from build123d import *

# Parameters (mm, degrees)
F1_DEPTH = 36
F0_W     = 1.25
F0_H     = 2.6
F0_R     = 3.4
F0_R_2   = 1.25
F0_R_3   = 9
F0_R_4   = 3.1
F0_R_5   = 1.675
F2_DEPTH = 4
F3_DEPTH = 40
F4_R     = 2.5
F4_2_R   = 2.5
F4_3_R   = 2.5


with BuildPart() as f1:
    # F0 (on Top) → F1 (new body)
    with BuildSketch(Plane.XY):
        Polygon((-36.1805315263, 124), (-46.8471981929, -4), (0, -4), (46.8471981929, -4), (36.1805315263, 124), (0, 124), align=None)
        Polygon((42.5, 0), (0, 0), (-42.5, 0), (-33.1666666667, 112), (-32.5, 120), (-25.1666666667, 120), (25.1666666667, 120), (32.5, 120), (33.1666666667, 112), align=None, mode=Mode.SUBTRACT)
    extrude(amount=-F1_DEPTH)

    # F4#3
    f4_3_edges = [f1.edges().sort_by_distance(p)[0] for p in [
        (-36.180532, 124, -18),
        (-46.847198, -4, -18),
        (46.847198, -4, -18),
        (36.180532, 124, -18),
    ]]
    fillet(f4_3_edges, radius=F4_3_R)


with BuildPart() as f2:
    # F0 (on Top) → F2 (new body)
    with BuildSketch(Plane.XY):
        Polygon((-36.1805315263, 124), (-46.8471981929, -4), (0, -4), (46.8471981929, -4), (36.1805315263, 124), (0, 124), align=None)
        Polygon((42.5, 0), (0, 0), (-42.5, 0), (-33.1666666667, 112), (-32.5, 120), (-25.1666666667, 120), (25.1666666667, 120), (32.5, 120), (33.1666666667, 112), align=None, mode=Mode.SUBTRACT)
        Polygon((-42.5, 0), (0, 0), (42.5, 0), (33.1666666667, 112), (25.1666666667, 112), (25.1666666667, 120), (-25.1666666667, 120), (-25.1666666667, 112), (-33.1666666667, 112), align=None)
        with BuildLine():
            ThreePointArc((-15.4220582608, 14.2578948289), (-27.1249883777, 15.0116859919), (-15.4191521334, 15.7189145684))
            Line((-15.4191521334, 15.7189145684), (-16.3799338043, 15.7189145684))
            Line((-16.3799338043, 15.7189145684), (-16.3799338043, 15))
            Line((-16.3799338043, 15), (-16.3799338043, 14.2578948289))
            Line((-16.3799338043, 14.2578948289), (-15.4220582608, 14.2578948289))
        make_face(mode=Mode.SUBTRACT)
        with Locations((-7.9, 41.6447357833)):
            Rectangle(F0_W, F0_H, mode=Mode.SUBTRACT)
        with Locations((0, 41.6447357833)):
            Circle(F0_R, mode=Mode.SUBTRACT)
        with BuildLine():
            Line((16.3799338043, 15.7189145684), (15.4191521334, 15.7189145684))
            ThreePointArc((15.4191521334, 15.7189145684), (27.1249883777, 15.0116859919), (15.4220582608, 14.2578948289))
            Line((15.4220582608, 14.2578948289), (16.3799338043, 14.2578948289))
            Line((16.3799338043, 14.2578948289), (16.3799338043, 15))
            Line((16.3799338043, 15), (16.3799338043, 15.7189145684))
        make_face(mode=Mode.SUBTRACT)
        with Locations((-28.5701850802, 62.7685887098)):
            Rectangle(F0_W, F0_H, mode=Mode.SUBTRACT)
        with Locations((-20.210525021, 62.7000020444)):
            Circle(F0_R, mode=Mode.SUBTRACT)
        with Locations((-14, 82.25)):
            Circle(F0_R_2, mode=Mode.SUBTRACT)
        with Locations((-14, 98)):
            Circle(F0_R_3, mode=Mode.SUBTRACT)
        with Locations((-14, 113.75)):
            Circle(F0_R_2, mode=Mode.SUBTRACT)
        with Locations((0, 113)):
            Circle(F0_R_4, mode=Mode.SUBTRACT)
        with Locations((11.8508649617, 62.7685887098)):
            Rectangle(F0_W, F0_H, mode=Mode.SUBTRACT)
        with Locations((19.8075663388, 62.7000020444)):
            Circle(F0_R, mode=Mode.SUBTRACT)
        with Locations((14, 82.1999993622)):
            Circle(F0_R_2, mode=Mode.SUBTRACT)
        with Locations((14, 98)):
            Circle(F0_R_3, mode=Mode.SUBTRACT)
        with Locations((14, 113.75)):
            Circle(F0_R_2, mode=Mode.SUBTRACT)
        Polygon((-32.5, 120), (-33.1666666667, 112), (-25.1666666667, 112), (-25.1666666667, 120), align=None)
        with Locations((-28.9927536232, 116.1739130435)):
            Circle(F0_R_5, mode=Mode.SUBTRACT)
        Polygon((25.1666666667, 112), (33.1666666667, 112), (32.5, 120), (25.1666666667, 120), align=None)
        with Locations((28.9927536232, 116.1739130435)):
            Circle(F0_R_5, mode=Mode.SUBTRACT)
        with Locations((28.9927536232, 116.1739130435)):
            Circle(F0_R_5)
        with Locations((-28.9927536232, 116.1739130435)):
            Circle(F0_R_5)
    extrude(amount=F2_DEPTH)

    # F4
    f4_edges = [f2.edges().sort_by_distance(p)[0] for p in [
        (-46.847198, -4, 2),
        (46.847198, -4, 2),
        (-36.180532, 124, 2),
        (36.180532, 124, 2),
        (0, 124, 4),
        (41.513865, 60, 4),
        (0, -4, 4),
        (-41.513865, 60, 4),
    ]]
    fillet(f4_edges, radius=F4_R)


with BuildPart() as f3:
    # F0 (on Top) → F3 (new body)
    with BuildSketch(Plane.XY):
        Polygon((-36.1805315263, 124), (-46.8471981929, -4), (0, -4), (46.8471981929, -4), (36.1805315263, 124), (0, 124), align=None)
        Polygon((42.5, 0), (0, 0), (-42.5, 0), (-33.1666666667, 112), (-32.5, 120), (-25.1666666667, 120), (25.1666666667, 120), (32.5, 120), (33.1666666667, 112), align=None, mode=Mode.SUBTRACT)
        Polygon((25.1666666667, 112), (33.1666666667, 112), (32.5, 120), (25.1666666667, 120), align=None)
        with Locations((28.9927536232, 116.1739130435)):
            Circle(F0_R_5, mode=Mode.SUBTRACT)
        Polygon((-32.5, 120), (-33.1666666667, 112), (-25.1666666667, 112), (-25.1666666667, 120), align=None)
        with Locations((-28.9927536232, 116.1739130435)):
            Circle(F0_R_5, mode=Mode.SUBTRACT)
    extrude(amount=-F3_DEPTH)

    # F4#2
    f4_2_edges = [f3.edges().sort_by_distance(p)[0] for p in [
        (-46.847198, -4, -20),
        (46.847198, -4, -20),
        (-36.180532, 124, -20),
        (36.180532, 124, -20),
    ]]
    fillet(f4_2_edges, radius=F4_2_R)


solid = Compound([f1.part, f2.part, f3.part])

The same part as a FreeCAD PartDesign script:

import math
import FreeCAD as App
import Part
import Sketcher

V = App.Vector


def edges_at(feature, points):
    """Names of the edges that pass closest to the given points."""
    edges = feature.Shape.Edges
    near = lambda p: min(range(len(edges)), key=lambda i: edges[i].distToShape(Part.Vertex(*p))[0])
    return sorted({f"Edge{near(p) + 1}" for p in points})


def add_polygon(sketch, points):
    """Adds a closed chain of lines whose ends are joined by coincident constraints."""
    first, n = sketch.GeometryCount, len(points)
    for a, b in zip(points, points[1:] + points[:1]):
        sketch.addGeometry(Part.LineSegment(App.Vector(*a, 0), App.Vector(*b, 0)), False)
    for i in range(n):
        sketch.addConstraint(Sketcher.Constraint("Coincident", first + i, 2, first + (i + 1) % n, 1))

doc = App.newDocument("Part")
params = doc.addObject("Spreadsheet::Sheet", "Params")
for row, (alias, value) in enumerate([
    ("sketch1_width", "85 mm"),
    ("sketch1_width2", "65 mm"),
    ("pad1_length", "36 mm"),
    ("fillet_radius", "2.5 mm"),
    ("sketch2_diameter", "18 mm"),
    ("sketch2_diameter2", "6.8 mm"),
    ("sketch2_diameter3", "2.5 mm"),
    ("sketch2_diameter4", "6.2 mm"),
    ("sketch2_height", "2.6 mm"),
    ("pad2_length", "4 mm"),
    ("fillet2_radius", "2.5 mm"),
    ("sketch3_diameter", "3.35 mm"),
    ("sketch3_width", "85 mm"),
    ("sketch3_width2", "8 mm"),
    ("pad3_length", "40 mm"),
    ("fillet3_radius", "2.5 mm"),
], start=1):
    params.set(f"A{row}", alias)
    params.set(f"B{row}", "=" + value)
    params.setAlias(f"B{row}", alias)

body = doc.addObject("PartDesign::Body", "Body")

# Sketch on XY plane
sketch1 = body.newObject("Sketcher::SketchObject", "Sketch")
sketch1.AttachmentSupport = (doc.getObject("XY_Plane"), [""])
sketch1.MapMode = "FlatFace"
add_polygon(sketch1, [(-36, 124), (-47, -4), (47, -4), (36, 124)])  # lines 0-3
add_polygon(sketch1, [(33, 112), (42, 0), (-42, 0), (-33, 112), (-32, 120), (32, 120)])  # lines 4-9
sketch1.addConstraint(Sketcher.Constraint("Horizontal", 1))
sketch1.addConstraint(Sketcher.Constraint("Horizontal", 3))
sketch1.addConstraint(Sketcher.Constraint("Horizontal", 5))
sketch1.addConstraint(Sketcher.Constraint("Horizontal", 8))
sketch1.addConstraint(Sketcher.Constraint("Symmetric", 4, 2, 5, 2, -1, 1))
sketch1.addConstraint(Sketcher.Constraint("Symmetric", 6, 2, 9, 2, -2))
sketch1.addConstraint(Sketcher.Constraint("Parallel", 2, 4))
sketch1.addConstraint(Sketcher.Constraint("Parallel", 0, 6))
sketch1.addConstraint(Sketcher.Constraint("Parallel", 6, 7))
sketch1.addConstraint(Sketcher.Constraint("Parallel", 4, 9))
sketch1.addConstraint(Sketcher.Constraint("DistanceX", 5, 2, 5, 1, 85.0))
sketch1.addConstraint(Sketcher.Constraint("DistanceX", 8, 1, 8, 2, 65.0))
sketch1.addConstraint(Sketcher.Constraint("DistanceY", 0, 2, -1, 1, 4.0))
sketch1.addConstraint(Sketcher.Constraint("DistanceY", -1, 1, 2, 2, 124.0))
sketch1.addConstraint(Sketcher.Constraint("DistanceY", -1, 1, 6, 2, 112.0))
sketch1.addConstraint(Sketcher.Constraint("DistanceY", -1, 1, 7, 2, 120.0))
sketch1.addConstraint(Sketcher.Constraint("DistanceX", 0, 2, -1, 1, 46.847198))
sketch1.addConstraint(Sketcher.Constraint("DistanceX", -1, 1, 1, 2, 46.847198))
sketch1.setExpression("Constraints[20]", "Params.sketch1_width")
sketch1.setExpression("Constraints[21]", "Params.sketch1_width2")
pad1 = body.newObject("PartDesign::Pad", "Pad")
pad1.Profile = sketch1
pad1.setExpression("Length", "Params.pad1_length")
pad1.Reversed = True
doc.recompute()

fillet = body.newObject("PartDesign::Fillet", "Fillet")
fillet.Base = (pad1, edges_at(pad1, [
    (-36.181, 124, -18),
    (-46.847, -4, -18),
    (46.847, -4, -18),
    (36.181, 124, -18),
]))
fillet.setExpression("Radius", "Params.fillet_radius")
body2 = doc.addObject("PartDesign::Body", "Body001")

# Sketch on XY plane
sketch2 = body2.newObject("Sketcher::SketchObject", "Sketch001")
sketch2.AttachmentSupport = (doc.getObject("XY_Plane001"), [""])
sketch2.MapMode = "FlatFace"
add_polygon(sketch2, [(-36.2, 124), (-46.8, -4), (46.8, -4), (36.2, 124)])  # lines 0-3
sketch2.addGeometry(Part.LineSegment(V(-16.4, 14.3, 0), V(-15.4, 14.3, 0)), False)  # 4
sketch2.addGeometry(Part.ArcOfCircle(Part.Circle(V(-21.2, 15, 0), V(0, 0, 1), 5.9), math.radians(7), math.radians(353)), False)  # 5
sketch2.addGeometry(Part.LineSegment(V(-15.4, 15.7, 0), V(-16.4, 15.7, 0)), False)  # 6
sketch2.addGeometry(Part.LineSegment(V(-16.4, 15.7, 0), V(-16.4, 14.3, 0)), False)  # 7
add_polygon(sketch2, [(-27.9, 61.5), (-29.2, 61.5), (-29.2, 64.1), (-27.9, 64.1)])  # lines 8-11
sketch2.addGeometry(Part.Circle(V(-20.2, 62.7, 0), V(0, 0, 1), 3.4), False)  # 12
add_polygon(sketch2, [(-7.3, 40.3), (-8.5, 40.3), (-8.5, 42.9), (-7.3, 42.9)])  # lines 13-16
sketch2.addGeometry(Part.LineSegment(V(16.4, 14.3, 0), V(16.4, 15.7, 0)), False)  # 17
sketch2.addGeometry(Part.LineSegment(V(16.4, 15.7, 0), V(15.4, 15.7, 0)), False)  # 18
sketch2.addGeometry(Part.ArcOfCircle(Part.Circle(V(21.2, 15, 0), V(0, 0, 1), 5.9), math.radians(-173), math.radians(173)), False)  # 19
sketch2.addGeometry(Part.LineSegment(V(15.4, 14.3, 0), V(16.4, 14.3, 0)), False)  # 20
sketch2.addGeometry(Part.Circle(V(0, 41.6, 0), V(0, 0, 1), 3.4), False)  # 21
add_polygon(sketch2, [(12.5, 61.5), (11.2, 61.5), (11.2, 64.1), (12.5, 64.1)])  # lines 22-25
sketch2.addGeometry(Part.Circle(V(19.8, 62.7, 0), V(0, 0, 1), 3.4), False)  # 26
sketch2.addGeometry(Part.Circle(V(-14, 82.2, 0), V(0, 0, 1), 1.2), False)  # 27
sketch2.addGeometry(Part.Circle(V(-14, 98, 0), V(0, 0, 1), 9), False)  # 28
sketch2.addGeometry(Part.Circle(V(-14, 113.8, 0), V(0, 0, 1), 1.2), False)  # 29
sketch2.addGeometry(Part.Circle(V(14, 82.2, 0), V(0, 0, 1), 1.2), False)  # 30
sketch2.addGeometry(Part.Circle(V(14, 98, 0), V(0, 0, 1), 9), False)  # 31
sketch2.addGeometry(Part.Circle(V(0, 113, 0), V(0, 0, 1), 3.1), False)  # 32
sketch2.addGeometry(Part.Circle(V(14, 113.8, 0), V(0, 0, 1), 1.2), False)  # 33
sketch2.addConstraint(Sketcher.Constraint("Coincident", 4, 2, 5, 2))
sketch2.addConstraint(Sketcher.Constraint("Coincident", 5, 1, 6, 1))
sketch2.addConstraint(Sketcher.Constraint("Coincident", 6, 2, 7, 1))
sketch2.addConstraint(Sketcher.Constraint("Coincident", 7, 2, 4, 1))
sketch2.addConstraint(Sketcher.Constraint("Coincident", 17, 2, 18, 1))
sketch2.addConstraint(Sketcher.Constraint("Coincident", 18, 2, 19, 2))
sketch2.addConstraint(Sketcher.Constraint("Coincident", 19, 1, 20, 1))
sketch2.addConstraint(Sketcher.Constraint("Coincident", 20, 2, 17, 1))
sketch2.addConstraint(Sketcher.Constraint("Horizontal", 1))
sketch2.addConstraint(Sketcher.Constraint("Horizontal", 3))
sketch2.addConstraint(Sketcher.Constraint("Horizontal", 4))
sketch2.addConstraint(Sketcher.Constraint("Horizontal", 6))
sketch2.addConstraint(Sketcher.Constraint("Vertical", 7))
sketch2.addConstraint(Sketcher.Constraint("Horizontal", 8))
sketch2.addConstraint(Sketcher.Constraint("Vertical", 9))
sketch2.addConstraint(Sketcher.Constraint("Horizontal", 10))
sketch2.addConstraint(Sketcher.Constraint("Vertical", 11))
sketch2.addConstraint(Sketcher.Constraint("Horizontal", 13))
sketch2.addConstraint(Sketcher.Constraint("Vertical", 14))
sketch2.addConstraint(Sketcher.Constraint("Horizontal", 15))
sketch2.addConstraint(Sketcher.Constraint("Vertical", 16))
sketch2.addConstraint(Sketcher.Constraint("Vertical", 17))
sketch2.addConstraint(Sketcher.Constraint("Horizontal", 18))
sketch2.addConstraint(Sketcher.Constraint("Horizontal", 20))
sketch2.addConstraint(Sketcher.Constraint("Horizontal", 22))
sketch2.addConstraint(Sketcher.Constraint("Vertical", 23))
sketch2.addConstraint(Sketcher.Constraint("Horizontal", 24))
sketch2.addConstraint(Sketcher.Constraint("Vertical", 25))
sketch2.addConstraint(Sketcher.Constraint("Equal", 5, 19))
sketch2.addConstraint(Sketcher.Constraint("Equal", 12, 21))
sketch2.addConstraint(Sketcher.Constraint("Equal", 21, 26))
sketch2.addConstraint(Sketcher.Constraint("Equal", 27, 29))
sketch2.addConstraint(Sketcher.Constraint("Equal", 29, 30))
sketch2.addConstraint(Sketcher.Constraint("Equal", 28, 31))
sketch2.addConstraint(Sketcher.Constraint("Equal", 30, 33))
sketch2.addConstraint(Sketcher.Constraint("Symmetric", 5, 3, 19, 3, -2))
sketch2.addConstraint(Sketcher.Constraint("Symmetric", 28, 3, 31, 3, -2))
sketch2.addConstraint(Sketcher.Constraint("Symmetric", 29, 3, 33, 3, -2))
sketch2.addConstraint(Sketcher.Constraint("Symmetric", 6, 2, 17, 2, -2))
sketch2.addConstraint(Sketcher.Constraint("PointOnObject", 21, 3, -2))
sketch2.addConstraint(Sketcher.Constraint("PointOnObject", 32, 3, -2))
sketch2.addConstraint(Sketcher.Constraint("Horizontal", 12, 3, 26, 3))
sketch2.addConstraint(Sketcher.Constraint("Horizontal", 7, 2, 19, 1))
sketch2.addConstraint(Sketcher.Constraint("Horizontal", 11, 2, 22, 2))
sketch2.addConstraint(Sketcher.Constraint("Horizontal", 10, 2, 23, 2))
sketch2.addConstraint(Sketcher.Constraint("Vertical", 27, 3, 28, 3))
sketch2.addConstraint(Sketcher.Constraint("Vertical", 28, 3, 29, 3))
sketch2.addConstraint(Sketcher.Constraint("Vertical", 30, 3, 31, 3))
sketch2.addConstraint(Sketcher.Constraint("Equal", 10, 13))
sketch2.addConstraint(Sketcher.Constraint("Equal", 15, 22))
sketch2.addConstraint(Sketcher.Constraint("Equal", 11, 14))
sketch2.addConstraint(Sketcher.Constraint("Equal", 0, 2))
sketch2.addConstraint(Sketcher.Constraint("Diameter", 28, 18.0))
sketch2.addConstraint(Sketcher.Constraint("Diameter", 12, 6.8))
sketch2.addConstraint(Sketcher.Constraint("Diameter", 27, 2.5))
sketch2.addConstraint(Sketcher.Constraint("Diameter", 32, 6.2))
sketch2.addConstraint(Sketcher.Constraint("DistanceY", 9, 1, 9, 2, 2.6))
sketch2.addConstraint(Sketcher.Constraint("DistanceY", -1, 1, 5, 3, 15.0))
sketch2.addConstraint(Sketcher.Constraint("DistanceX", 27, 3, -1, 1, 14.0))
sketch2.addConstraint(Sketcher.Constraint("DistanceY", -1, 1, 28, 3, 98.0))
sketch2.addConstraint(Sketcher.Constraint("DistanceY", -1, 1, 32, 3, 113.0))
sketch2.addConstraint(Sketcher.Constraint("DistanceY", 0, 2, -1, 1, 4.0))
sketch2.addConstraint(Sketcher.Constraint("DistanceY", -1, 1, 2, 2, 124.0))
sketch2.addConstraint(Sketcher.Constraint("Radius", 5, 5.875))
sketch2.addConstraint(Sketcher.Constraint("DistanceX", 8, 2, 8, 1, 1.25))
sketch2.addConstraint(Sketcher.Constraint("DistanceY", -1, 1, 30, 3, 82.199999))
sketch2.addConstraint(Sketcher.Constraint("DistanceX", 5, 3, 19, 3, 42.5))
sketch2.addConstraint(Sketcher.Constraint("DistanceY", 27, 3, 29, 3, 31.5))
sketch2.addConstraint(Sketcher.Constraint("DistanceY", 13, 2, 21, 3, 1.3))
sketch2.addConstraint(Sketcher.Constraint("DistanceY", -1, 1, 27, 3, 82.25))
sketch2.addConstraint(Sketcher.Constraint("DistanceX", 13, 2, -1, 1, 8.525))
sketch2.addConstraint(Sketcher.Constraint("DistanceX", 6, 2, 6, 1, 0.960782))
sketch2.addConstraint(Sketcher.Constraint("DistanceY", 7, 2, 7, 1, 1.46102))
sketch2.addConstraint(Sketcher.Constraint("DistanceX", 0, 2, -1, 1, 46.847198))
sketch2.addConstraint(Sketcher.Constraint("DistanceX", -1, 1, 1, 2, 46.847198))
sketch2.addConstraint(Sketcher.Constraint("DistanceX", 22, 2, 26, 3, 8.581701))
sketch2.addConstraint(Sketcher.Constraint("DistanceX", 3, 2, 3, 1, 72.361063))
sketch2.addConstraint(Sketcher.Constraint("DistanceX", 4, 1, 4, 2, 0.957876))
sketch2.addConstraint(Sketcher.Constraint("DistanceY", -1, 1, 8, 2, 61.468589))
sketch2.addConstraint(Sketcher.Constraint("DistanceX", 12, 3, 26, 3, 40.018091))
sketch2.addConstraint(Sketcher.Constraint("DistanceX", 26, 3, 1, 2, 27.039632))
sketch2.addConstraint(Sketcher.Constraint("DistanceY", 4, 2, 21, 3, 27.386841))
sketch2.addConstraint(Sketcher.Constraint("DistanceX", 8, 2, 12, 3, 8.98466))
sketch2.addConstraint(Sketcher.Constraint("DistanceY", -1, 1, 12, 3, 62.700002))
sketch2.setExpression("Constraints[68]", "Params.sketch2_diameter")
sketch2.setExpression("Constraints[69]", "Params.sketch2_diameter2")
sketch2.setExpression("Constraints[70]", "Params.sketch2_diameter3")
sketch2.setExpression("Constraints[71]", "Params.sketch2_diameter4")
sketch2.setExpression("Constraints[72]", "Params.sketch2_height")
pad2 = body2.newObject("PartDesign::Pad", "Pad001")
pad2.Profile = sketch2
pad2.setExpression("Length", "Params.pad2_length")
doc.recompute()

fillet2 = body2.newObject("PartDesign::Fillet", "Fillet001")
fillet2.Base = (pad2, edges_at(pad2, [
    (-46.847, -4, 2),
    (46.847, -4, 2),
    (-36.181, 124, 2),
    (36.181, 124, 2),
    (0, 124, 4),
    (41.514, 60, 4),
    (0, -4, 4),
    (-41.514, 60, 4),
]))
fillet2.setExpression("Radius", "Params.fillet2_radius")
body3 = doc.addObject("PartDesign::Body", "Body002")

# Sketch on XY plane
sketch3 = body3.newObject("Sketcher::SketchObject", "Sketch002")
sketch3.AttachmentSupport = (doc.getObject("XY_Plane002"), [""])
sketch3.MapMode = "FlatFace"
add_polygon(sketch3, [(-36.2, 124), (-46.8, -4), (46.8, -4), (36.2, 124)])  # lines 0-3
add_polygon(sketch3, [(33.2, 112), (42.5, 0), (-42.5, 0), (-33.2, 112), (-25.2, 112), (-25.2, 120), (25.2, 120), (25.2, 112)])  # lines 4-11
sketch3.addGeometry(Part.Circle(V(-29, 116.2, 0), V(0, 0, 1), 1.7), False)  # 12
sketch3.addGeometry(Part.Circle(V(29, 116.2, 0), V(0, 0, 1), 1.7), False)  # 13
sketch3.addConstraint(Sketcher.Constraint("Horizontal", 1))
sketch3.addConstraint(Sketcher.Constraint("Horizontal", 3))
sketch3.addConstraint(Sketcher.Constraint("Horizontal", 5))
sketch3.addConstraint(Sketcher.Constraint("Horizontal", 7))
sketch3.addConstraint(Sketcher.Constraint("Vertical", 8))
sketch3.addConstraint(Sketcher.Constraint("Horizontal", 9))
sketch3.addConstraint(Sketcher.Constraint("Vertical", 10))
sketch3.addConstraint(Sketcher.Constraint("Horizontal", 11))
sketch3.addConstraint(Sketcher.Constraint("Equal", 12, 13))
sketch3.addConstraint(Sketcher.Constraint("Symmetric", 4, 2, 5, 2, -1, 1))
sketch3.addConstraint(Sketcher.Constraint("Symmetric", 12, 3, 13, 3, -2))
sketch3.addConstraint(Sketcher.Constraint("Symmetric", 7, 2, 10, 2, -2))
sketch3.addConstraint(Sketcher.Constraint("Parallel", 2, 4))
sketch3.addConstraint(Sketcher.Constraint("Parallel", 0, 6))
sketch3.addConstraint(Sketcher.Constraint("Equal", 7, 11))
sketch3.addConstraint(Sketcher.Constraint("Equal", 11, 8))
sketch3.addConstraint(Sketcher.Constraint("Diameter", 12, 3.35))
sketch3.addConstraint(Sketcher.Constraint("DistanceX", 5, 2, 5, 1, 85.0))
sketch3.addConstraint(Sketcher.Constraint("DistanceX", 7, 1, 7, 2, 8.0))
sketch3.addConstraint(Sketcher.Constraint("DistanceY", 0, 2, -1, 1, 4.0))
sketch3.addConstraint(Sketcher.Constraint("DistanceY", -1, 1, 2, 2, 124.0))
sketch3.addConstraint(Sketcher.Constraint("DistanceY", -1, 1, 6, 2, 112.0))
sketch3.addConstraint(Sketcher.Constraint("DistanceX", 0, 2, -1, 1, 46.847198))
sketch3.addConstraint(Sketcher.Constraint("DistanceX", -1, 1, 1, 2, 46.847198))
sketch3.addConstraint(Sketcher.Constraint("DistanceX", 6, 2, 2, 2, 69.347198))
sketch3.addConstraint(Sketcher.Constraint("DistanceX", 0, 2, 13, 3, 75.839952))
sketch3.addConstraint(Sketcher.Constraint("DistanceY", -1, 1, 12, 3, 116.173913))
sketch3.setExpression("Constraints[28]", "Params.sketch3_diameter")
sketch3.setExpression("Constraints[29]", "Params.sketch3_width")
sketch3.setExpression("Constraints[30]", "Params.sketch3_width2")
pad3 = body3.newObject("PartDesign::Pad", "Pad002")
pad3.Profile = sketch3
pad3.setExpression("Length", "Params.pad3_length")
pad3.Reversed = True
doc.recompute()

fillet3 = body3.newObject("PartDesign::Fillet", "Fillet002")
fillet3.Base = (pad3, edges_at(pad3, [
    (-46.847, -4, -20),
    (46.847, -4, -20),
    (-36.181, 124, -20),
    (36.181, 124, -20),
]))
fillet3.setExpression("Radius", "Params.fillet3_radius")

doc.recompute()
